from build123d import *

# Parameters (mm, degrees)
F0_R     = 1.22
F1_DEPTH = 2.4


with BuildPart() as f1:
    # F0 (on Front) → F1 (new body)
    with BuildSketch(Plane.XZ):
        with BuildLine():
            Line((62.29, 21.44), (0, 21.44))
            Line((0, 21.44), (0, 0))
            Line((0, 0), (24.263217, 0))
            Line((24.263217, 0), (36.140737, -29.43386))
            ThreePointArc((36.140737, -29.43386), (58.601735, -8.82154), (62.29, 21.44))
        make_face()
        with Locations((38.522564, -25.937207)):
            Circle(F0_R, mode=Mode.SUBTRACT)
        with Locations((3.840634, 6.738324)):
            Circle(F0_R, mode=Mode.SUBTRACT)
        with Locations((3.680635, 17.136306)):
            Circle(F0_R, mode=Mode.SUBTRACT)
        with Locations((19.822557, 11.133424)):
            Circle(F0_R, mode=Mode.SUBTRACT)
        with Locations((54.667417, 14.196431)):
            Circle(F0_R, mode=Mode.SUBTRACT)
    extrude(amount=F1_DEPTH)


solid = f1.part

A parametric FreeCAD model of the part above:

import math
import FreeCAD as App
import Part
import Sketcher

doc = App.newDocument("Part")
body = doc.addObject("PartDesign::Body", "Body")

sketch1 = body.newObject("Sketcher::SketchObject", "Sketch")
sketch1.AttachmentSupport = (doc.getObject("XZ_Plane"), [""])
sketch1.MapMode = "FlatFace"
sketch1.addGeometry([
    Part.LineSegment(App.Vector(62.29, 21.44, 0), App.Vector(0, 21.44, 0)),
    Part.LineSegment(App.Vector(0, 21.44, 0), App.Vector(0, 0, 0)),
    Part.LineSegment(App.Vector(0, 0, 0), App.Vector(24.263217, 0, 0)),
    Part.LineSegment(App.Vector(24.263217, 0, 0), App.Vector(36.140737, -29.43386, 0)),
    Part.ArcOfCircle(Part.Circle(App.Vector(19.441677, 11.306805, 0), App.Vector(0, 0, 1), 44.030221), math.radians(-67.711925), math.radians(13.305421)),
    Part.Circle(App.Vector(38.522564, -25.937207, 0), App.Vector(0, 0, 1), 1.22),
    Part.Circle(App.Vector(3.840634, 6.738324, 0), App.Vector(0, 0, 1), 1.22),
    Part.Circle(App.Vector(3.680635, 17.136306, 0), App.Vector(0, 0, 1), 1.22),
    Part.Circle(App.Vector(19.822557, 11.133424, 0), App.Vector(0, 0, 1), 1.22),
    Part.Circle(App.Vector(54.667417, 14.196431, 0), App.Vector(0, 0, 1), 1.22),
], False)
sketch1.addConstraint([
    Sketcher.Constraint("Coincident", 0, 2, 1, 1),
    Sketcher.Constraint("Coincident", 1, 2, 2, 1),
    Sketcher.Constraint("Coincident", 2, 2, 3, 1),
    Sketcher.Constraint("Coincident", 3, 2, 4, 1),
    Sketcher.Constraint("Coincident", 4, 2, 0, 1),
    Sketcher.Constraint("Horizontal", 0),
    Sketcher.Constraint("Vertical", 1),
    Sketcher.Constraint("Horizontal", 2),
    Sketcher.Constraint("Coincident", 1, 2, -1, 1),
    Sketcher.Constraint("Equal", 5, 6),
    Sketcher.Constraint("Equal", 6, 7),
    Sketcher.Constraint("Equal", 7, 8),
    Sketcher.Constraint("Equal", 8, 9),
    Sketcher.Constraint("Diameter", 5, 2.44),
    Sketcher.Constraint("DistanceX", 0, 2, 0, 1, 62.29),
    Sketcher.Constraint("DistanceY", 1, 2, 1, 1, 21.44),
    Sketcher.Constraint("Distance", 3, 31.74),
    Sketcher.Constraint("Radius", 4, 44.030221),
    Sketcher.Constraint("DistanceX", 7, 3, 6, 3, 0.159999),
    Sketcher.Constraint("DistanceY", 4, 3, 7, 3, 5.829501),
    Sketcher.Constraint("DistanceY", 6, 3, 8, 3, 4.3951),
    Sketcher.Constraint("DistanceX", 2, 1, 2, 2, 24.263217),
    Sketcher.Constraint("DistanceY", -1, 1, 9, 3, 14.196431),
    Sketcher.Constraint("DistanceY", 3, 2, -1, 1, 29.43386),
    Sketcher.Constraint("DistanceY", 6, 3, 4, 3, 4.568481),
    Sketcher.Constraint("DistanceX", 6, 3, 5, 3, 34.68193),
    Sketcher.Constraint("DistanceY", 5, 3, 6, 3, 32.675531),
    Sketcher.Constraint("DistanceX", 4, 3, 8, 3, 0.38088),
    Sketcher.Constraint("DistanceX", 8, 3, 9, 3, 34.84486),
    Sketcher.Constraint("DistanceX", 7, 3, 9, 3, 50.986782),
])
pad1 = body.newObject("PartDesign::Pad", "Pad")
pad1.Profile = sketch1
pad1.Length = 2.4

doc.recompute()
